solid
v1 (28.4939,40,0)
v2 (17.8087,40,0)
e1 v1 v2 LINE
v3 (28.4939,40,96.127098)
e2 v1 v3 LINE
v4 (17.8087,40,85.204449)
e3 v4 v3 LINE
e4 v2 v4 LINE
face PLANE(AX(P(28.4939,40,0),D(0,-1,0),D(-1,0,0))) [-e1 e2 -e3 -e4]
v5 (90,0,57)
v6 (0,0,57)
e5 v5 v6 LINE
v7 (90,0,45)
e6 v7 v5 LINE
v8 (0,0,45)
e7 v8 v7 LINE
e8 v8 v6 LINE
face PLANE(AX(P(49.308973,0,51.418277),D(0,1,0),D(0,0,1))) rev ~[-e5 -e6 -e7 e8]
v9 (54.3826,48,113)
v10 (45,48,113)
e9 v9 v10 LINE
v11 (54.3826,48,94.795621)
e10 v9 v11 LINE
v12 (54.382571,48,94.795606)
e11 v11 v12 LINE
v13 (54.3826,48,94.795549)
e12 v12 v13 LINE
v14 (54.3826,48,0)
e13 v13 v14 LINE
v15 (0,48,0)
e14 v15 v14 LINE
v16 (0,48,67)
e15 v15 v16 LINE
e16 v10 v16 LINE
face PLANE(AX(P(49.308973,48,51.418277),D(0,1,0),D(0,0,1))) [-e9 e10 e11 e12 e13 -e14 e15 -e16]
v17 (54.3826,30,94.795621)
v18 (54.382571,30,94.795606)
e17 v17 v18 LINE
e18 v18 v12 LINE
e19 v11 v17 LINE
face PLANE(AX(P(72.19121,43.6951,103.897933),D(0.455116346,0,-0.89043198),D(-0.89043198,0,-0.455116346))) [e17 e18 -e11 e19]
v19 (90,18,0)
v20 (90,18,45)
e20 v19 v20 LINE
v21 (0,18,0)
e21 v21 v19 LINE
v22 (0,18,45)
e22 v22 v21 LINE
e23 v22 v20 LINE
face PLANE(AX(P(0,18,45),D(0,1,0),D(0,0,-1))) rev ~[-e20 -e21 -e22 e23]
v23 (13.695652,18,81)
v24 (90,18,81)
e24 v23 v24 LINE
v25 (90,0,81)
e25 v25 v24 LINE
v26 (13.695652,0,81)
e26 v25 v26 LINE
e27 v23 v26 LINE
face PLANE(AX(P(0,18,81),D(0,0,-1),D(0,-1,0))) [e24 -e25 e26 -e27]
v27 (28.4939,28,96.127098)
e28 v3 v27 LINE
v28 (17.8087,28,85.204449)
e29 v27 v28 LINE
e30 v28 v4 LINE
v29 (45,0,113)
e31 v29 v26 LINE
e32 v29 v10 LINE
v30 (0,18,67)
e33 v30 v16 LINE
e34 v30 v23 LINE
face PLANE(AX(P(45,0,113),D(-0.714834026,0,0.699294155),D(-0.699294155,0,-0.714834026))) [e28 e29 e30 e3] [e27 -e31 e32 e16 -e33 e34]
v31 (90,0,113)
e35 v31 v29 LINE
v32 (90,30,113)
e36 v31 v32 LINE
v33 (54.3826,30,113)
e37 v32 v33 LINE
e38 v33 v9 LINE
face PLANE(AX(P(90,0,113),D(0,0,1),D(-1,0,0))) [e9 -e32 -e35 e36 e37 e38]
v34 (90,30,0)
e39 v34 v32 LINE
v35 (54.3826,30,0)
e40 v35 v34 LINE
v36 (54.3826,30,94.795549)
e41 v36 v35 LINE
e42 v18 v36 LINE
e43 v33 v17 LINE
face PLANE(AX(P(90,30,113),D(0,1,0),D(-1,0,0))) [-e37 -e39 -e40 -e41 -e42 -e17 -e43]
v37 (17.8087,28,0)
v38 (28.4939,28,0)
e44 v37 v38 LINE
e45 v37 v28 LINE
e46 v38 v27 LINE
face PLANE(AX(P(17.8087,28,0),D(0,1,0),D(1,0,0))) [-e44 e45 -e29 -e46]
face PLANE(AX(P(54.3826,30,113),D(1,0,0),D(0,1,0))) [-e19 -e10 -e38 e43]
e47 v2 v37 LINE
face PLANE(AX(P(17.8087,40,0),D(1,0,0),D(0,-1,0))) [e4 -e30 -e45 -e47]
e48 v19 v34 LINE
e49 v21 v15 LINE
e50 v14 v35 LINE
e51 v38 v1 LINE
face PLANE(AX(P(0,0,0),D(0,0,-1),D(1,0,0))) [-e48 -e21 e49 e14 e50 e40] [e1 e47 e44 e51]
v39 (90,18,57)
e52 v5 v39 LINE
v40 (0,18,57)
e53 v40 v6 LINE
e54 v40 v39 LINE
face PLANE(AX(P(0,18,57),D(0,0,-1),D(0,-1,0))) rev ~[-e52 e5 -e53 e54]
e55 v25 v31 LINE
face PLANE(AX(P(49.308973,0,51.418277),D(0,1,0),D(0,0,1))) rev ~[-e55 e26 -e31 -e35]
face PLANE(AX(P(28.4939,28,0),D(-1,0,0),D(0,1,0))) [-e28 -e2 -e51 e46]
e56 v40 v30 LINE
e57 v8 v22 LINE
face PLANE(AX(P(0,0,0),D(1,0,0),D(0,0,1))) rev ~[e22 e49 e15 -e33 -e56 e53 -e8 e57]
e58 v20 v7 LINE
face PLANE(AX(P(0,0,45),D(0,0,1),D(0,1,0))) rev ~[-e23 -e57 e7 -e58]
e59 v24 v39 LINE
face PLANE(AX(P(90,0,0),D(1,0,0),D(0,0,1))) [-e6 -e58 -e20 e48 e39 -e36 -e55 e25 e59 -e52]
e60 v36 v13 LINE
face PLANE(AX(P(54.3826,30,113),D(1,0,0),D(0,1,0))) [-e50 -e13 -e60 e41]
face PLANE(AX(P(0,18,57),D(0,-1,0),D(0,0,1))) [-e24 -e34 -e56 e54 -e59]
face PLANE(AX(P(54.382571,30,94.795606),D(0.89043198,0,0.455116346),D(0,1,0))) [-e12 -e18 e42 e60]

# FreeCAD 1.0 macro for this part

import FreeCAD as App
import Part
import Sketcher

V = App.Vector
Q = App.Units.Quantity


def add_polygon(sketch, points):
    """Adds a closed chain of lines whose ends are joined by coincident constraints."""
    first, n = sketch.GeometryCount, len(points)
    for a, b in zip(points, points[1:] + points[:1]):
        sketch.addGeometry(Part.LineSegment(App.Vector(*a, 0), App.Vector(*b, 0)), False)
    for i in range(n):
        sketch.addConstraint(Sketcher.Constraint("Coincident", first + i, 2, first + (i + 1) % n, 1))

doc = App.newDocument("Part")
body = doc.addObject("PartDesign::Body", "Body")

# Sketch on XZ plane
sketch1 = body.newObject("Sketcher::SketchObject", "Sketch")
sketch1.AttachmentSupport = (doc.getObject("XZ_Plane"), [""])
sketch1.MapMode = "FlatFace"
add_polygon(sketch1, [(0, 67), (0, 0), (90, 0), (90, 113), (45, 113)])  # lines 0-4
sketch1.addConstraint(Sketcher.Constraint("Vertical", 0))
sketch1.addConstraint(Sketcher.Constraint("Horizontal", 1))
sketch1.addConstraint(Sketcher.Constraint("Vertical", 2))
sketch1.addConstraint(Sketcher.Constraint("Horizontal", 3))
sketch1.addConstraint(Sketcher.Constraint("Coincident", 0, 2, -1, 1))
sketch1.addConstraint(Sketcher.Constraint("DistanceX", 1, 1, 1, 2, Q("90 mm")))
sketch1.addConstraint(Sketcher.Constraint("DistanceX", 3, 2, 3, 1, Q("45 mm")))
sketch1.addConstraint(Sketcher.Constraint("DistanceY", 0, 2, 0, 1, Q("67 mm")))
sketch1.addConstraint(Sketcher.Constraint("DistanceY", 2, 1, 2, 2, Q("113 mm")))
pad1 = body.newObject("PartDesign::Pad", "Pad")
pad1.Profile = sketch1
pad1.Length = 48
pad1.Reversed = True

# Sketch on YZ plane
sketch2 = body.newObject("Sketcher::SketchObject", "Sketch001")
sketch2.AttachmentSupport = (doc.getObject("YZ_Plane"), [""])
sketch2.MapMode = "FlatFace"
add_polygon(sketch2, [(-7, 81), (18, 81), (18, 57), (-7, 57)])  # lines 0-3
sketch2.addConstraint(Sketcher.Constraint("Horizontal", 0))
sketch2.addConstraint(Sketcher.Constraint("Vertical", 1))
sketch2.addConstraint(Sketcher.Constraint("Horizontal", 2))
sketch2.addConstraint(Sketcher.Constraint("Vertical", 3))
sketch2.addConstraint(Sketcher.Constraint("DistanceY", 1, 2, 1, 1, Q("24 mm")))
sketch2.addConstraint(Sketcher.Constraint("DistanceX", -1, 1, 0, 2, Q("18 mm")))
sketch2.addConstraint(Sketcher.Constraint("DistanceY", -1, 1, 0, 2, Q("81 mm")))
sketch2.addConstraint(Sketcher.Constraint("DistanceX", 0, 1, 0, 2, Q("25.214 mm")))
pocket1 = body.newObject("PartDesign::Pocket", "Pocket")
pocket1.Profile = sketch2
pocket1.Length = 119.7329
pocket1.Reversed = True

# Sketch on YZ plane
sketch3 = body.newObject("Sketcher::SketchObject", "Sketch002")
sketch3.AttachmentSupport = (doc.getObject("YZ_Plane"), [""])
sketch3.MapMode = "FlatFace"
add_polygon(sketch3, [(-9, 45), (18, 45), (18, -6), (-9, -6)])  # lines 0-3
sketch3.addConstraint(Sketcher.Constraint("Horizontal", 0))
sketch3.addConstraint(Sketcher.Constraint("Vertical", 1))
sketch3.addConstraint(Sketcher.Constraint("Horizontal", 2))
sketch3.addConstraint(Sketcher.Constraint("Vertical", 3))
sketch3.addConstraint(Sketcher.Constraint("DistanceX", -1, 1, 0, 2, Q("18 mm")))
sketch3.addConstraint(Sketcher.Constraint("DistanceY", -1, 1, 0, 2, Q("45 mm")))
sketch3.addConstraint(Sketcher.Constraint("DistanceX", 0, 1, 0, 2, Q("26.558 mm")))
sketch3.addConstraint(Sketcher.Constraint("DistanceY", 1, 2, 1, 1, Q("50.5842 mm")))
pocket2 = body.newObject("PartDesign::Pocket", "Pocket001")
pocket2.Profile = sketch3
pocket2.Length = 121.1095
pocket2.Reversed = True

# Sketch on an angled plane
sketch4 = body.newObject("Sketcher::SketchObject", "Sketch003")
sketch4.Placement = App.Placement(V(45, 24, 90), App.Rotation(V(0, -1, 0), V(0.89043198, 0, 0.455116346), V(-0.455116346, 0, 0.89043198), "ZXY"))
add_polygon(sketch4, [(-6, 11), (-6, 51), (-33, 51), (-33, 11)])  # lines 0-3
sketch4.addConstraint(Sketcher.Constraint("Vertical", 0))
sketch4.addConstraint(Sketcher.Constraint("Horizontal", 1))
sketch4.addConstraint(Sketcher.Constraint("Vertical", 2))
sketch4.addConstraint(Sketcher.Constraint("Horizontal", 3))
sketch4.addConstraint(Sketcher.Constraint("DistanceY", 0, 1, 0, 2, Q("40 mm")))
sketch4.addConstraint(Sketcher.Constraint("DistanceX", 0, 2, -1, 1, Q("6 mm")))
sketch4.addConstraint(Sketcher.Constraint("DistanceX", 1, 2, 1, 1, Q("27.3902 mm")))
sketch4.addConstraint(Sketcher.Constraint("DistanceY", -1, 1, 0, 2, Q("50.537 mm")))
pocket3 = body.newObject("PartDesign::Pocket", "Pocket002")
pocket3.Profile = sketch4
pocket3.Length = 192.3862

# Sketch on XY plane
sketch5 = body.newObject("Sketcher::SketchObject", "Sketch004")
sketch5.AttachmentSupport = (doc.getObject("XY_Plane"), [""])
sketch5.MapMode = "FlatFace"
add_polygon(sketch5, [(18, 28), (18, 40), (28, 40), (28, 28)])  # lines 0-3
sketch5.addConstraint(Sketcher.Constraint("Vertical", 0))
sketch5.addConstraint(Sketcher.Constraint("Horizontal", 1))
sketch5.addConstraint(Sketcher.Constraint("Vertical", 2))
sketch5.addConstraint(Sketcher.Constraint("Horizontal", 3))
sketch5.addConstraint(Sketcher.Constraint("DistanceY", 0, 1, 0, 2, Q("12 mm")))
sketch5.addConstraint(Sketcher.Constraint("DistanceY", -1, 1, 0, 2, Q("40 mm")))
sketch5.addConstraint(Sketcher.Constraint("DistanceX", 1, 1, 1, 2, Q("10.6852 mm")))
sketch5.addConstraint(Sketcher.Constraint("DistanceX", -1, 1, 1, 2, Q("28.494 mm")))
pocket4 = body.newObject("PartDesign::Pocket", "Pocket003")
pocket4.Profile = sketch5
pocket4.Length = 129.7045
pocket4.Reversed = True

# Sketch on XY plane
sketch6 = body.newObject("Sketcher::SketchObject", "Sketch005")
sketch6.AttachmentSupport = (doc.getObject("XY_Plane"), [""])
sketch6.MapMode = "FlatFace"
sketch6.AttachmentOffset = App.Placement(V(0, 0, 113), App.Rotation())
add_polygon(sketch6, [(54, 30), (90, 30), (90, 57), (54, 57)])  # lines 0-3
sketch6.addConstraint(Sketcher.Constraint("Horizontal", 0))
sketch6.addConstraint(Sketcher.Constraint("Vertical", 1))
sketch6.addConstraint(Sketcher.Constraint("Horizontal", 2))
sketch6.addConstraint(Sketcher.Constraint("Vertical", 3))
sketch6.addConstraint(Sketcher.Constraint("DistanceX", -1, 1, 0, 2, Q("90 mm")))
sketch6.addConstraint(Sketcher.Constraint("DistanceY", -1, 1, 0, 2, Q("30 mm")))
sketch6.addConstraint(Sketcher.Constraint("DistanceX", 0, 1, 0, 2, Q("35.6174 mm")))
sketch6.addConstraint(Sketcher.Constraint("DistanceY", 1, 1, 1, 2, Q("27.3902 mm")))
pocket5 = body.newObject("PartDesign::Pocket", "Pocket004")
pocket5.Profile = sketch6
pocket5.Length = 144.9371

doc.recompute()
